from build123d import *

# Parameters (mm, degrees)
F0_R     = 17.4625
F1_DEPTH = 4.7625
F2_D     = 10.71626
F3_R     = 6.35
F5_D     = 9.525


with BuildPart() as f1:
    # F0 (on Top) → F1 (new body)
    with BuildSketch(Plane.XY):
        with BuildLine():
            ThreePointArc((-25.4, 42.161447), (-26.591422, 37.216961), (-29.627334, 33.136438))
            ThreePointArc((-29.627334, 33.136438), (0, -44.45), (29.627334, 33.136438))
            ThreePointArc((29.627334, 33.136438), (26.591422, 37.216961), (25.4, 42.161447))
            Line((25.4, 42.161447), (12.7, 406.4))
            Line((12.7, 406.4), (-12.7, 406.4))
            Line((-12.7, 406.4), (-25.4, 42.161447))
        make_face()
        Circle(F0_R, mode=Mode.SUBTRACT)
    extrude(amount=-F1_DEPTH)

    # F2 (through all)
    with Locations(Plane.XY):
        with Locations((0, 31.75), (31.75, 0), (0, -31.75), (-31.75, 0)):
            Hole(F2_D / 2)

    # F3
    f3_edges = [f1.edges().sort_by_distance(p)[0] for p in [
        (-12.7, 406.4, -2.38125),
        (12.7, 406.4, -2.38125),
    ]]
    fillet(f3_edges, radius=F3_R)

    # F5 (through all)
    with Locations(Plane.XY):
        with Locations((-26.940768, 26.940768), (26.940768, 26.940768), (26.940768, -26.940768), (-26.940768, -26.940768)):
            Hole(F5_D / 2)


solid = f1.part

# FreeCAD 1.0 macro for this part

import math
import FreeCAD as App
import Part
import Sketcher
Q = App.Units.Quantity


def edges_at(feature, points):
    """Names of the edges that pass closest to the given points."""
    edges = feature.Shape.Edges
    near = lambda p: min(range(len(edges)), key=lambda i: edges[i].distToShape(Part.Vertex(*p))[0])
    return sorted({f"Edge{near(p) + 1}" for p in points})

doc = App.newDocument("Part")
params = doc.addObject("Spreadsheet::Sheet", "Params")
for row, (alias, value) in enumerate([
    ("sketch1_radius", "0.5000001 in"),
    ("sketch1_width", "1 in"),
    ("sketch1_radius2", "1.75 in"),
    ("sketch1_diameter", "1.375 in"),
    ("pad1_length", "0.1875 in"),
    ("hole_diameter", "0.4219 in"),
    ("fillet_radius", "0.25 in"),
    ("sketch3_diameter", "0.375 in"),
    ("hole2_diameter", "0.375 in"),
], start=1):
    params.set(f"A{row}", alias)
    params.set(f"B{row}", "=" + value)
    params.setAlias(f"B{row}", alias)

body = doc.addObject("PartDesign::Body", "Body")

# Sketch on XY plane
sketch1 = body.newObject("Sketcher::SketchObject", "Sketch")
sketch1.AttachmentSupport = (doc.getObject("XY_Plane"), [""])
sketch1.MapMode = "FlatFace"
sketch1.addGeometry([
    Part.ArcOfCircle(Part.Circle(App.Vector(-38, 43, 0), App.Vector(0, 0, 1), 13), math.radians(-48), math.radians(-2)),  # 0
    Part.ArcOfCircle(Part.Circle(App.Vector(0, 0, 0), App.Vector(0, 0, 1), 44), math.radians(132), math.radians(408)),  # 1
    Part.ArcOfCircle(Part.Circle(App.Vector(38, 43, 0), App.Vector(0, 0, 1), 13), math.radians(-178), math.radians(-132)),  # 2
    Part.LineSegment(App.Vector(25, 42, 0), App.Vector(13, 406, 0)),  # 3
    Part.LineSegment(App.Vector(13, 406, 0), App.Vector(-13, 406, 0)),  # 4
    Part.LineSegment(App.Vector(-13, 406, 0), App.Vector(-25, 42, 0)),  # 5
    Part.Circle(App.Vector(0, 0, 0), App.Vector(0, 0, 1), 17),  # 6
], False)
sketch1.addConstraint([
    Sketcher.Constraint("Tangent", 0, 1, 1, 1),
    Sketcher.Constraint("Tangent", 1, 2, 2, 2),
    Sketcher.Constraint("Tangent", 2, 1, 3, 1),
    Sketcher.Constraint("Coincident", 3, 2, 4, 1),
    Sketcher.Constraint("Coincident", 4, 2, 5, 1),
    Sketcher.Constraint("Tangent", 5, 2, 0, 2),
    Sketcher.Constraint("Horizontal", 4),
    Sketcher.Constraint("Coincident", 1, 3, -1, 1),
    Sketcher.Constraint("Coincident", 6, 3, -1, 1),
    Sketcher.Constraint("Equal", 0, 2),
    Sketcher.Constraint("Symmetric", 2, 1, 5, 2, -2),
    Sketcher.Constraint("Radius", 0, Q("0.5000001 in")),
    Sketcher.Constraint("DistanceX", 4, 2, 4, 1, Q("1 in")),
    Sketcher.Constraint("Radius", 1, Q("1.75 in")),
    Sketcher.Constraint("Diameter", 6, Q("1.375 in")),
    Sketcher.Constraint("DistanceX", -1, 1, 2, 1, Q("1 in")),
    Sketcher.Constraint("DistanceY", -1, 1, 3, 2, Q("16 in")),
])
sketch1.setExpression("Constraints[11]", "Params.sketch1_radius")
sketch1.setExpression("Constraints[12]", "Params.sketch1_width")
sketch1.setExpression("Constraints[13]", "Params.sketch1_radius2")
sketch1.setExpression("Constraints[14]", "Params.sketch1_diameter")
pad1 = body.newObject("PartDesign::Pad", "Pad")
pad1.Profile = sketch1
pad1.setExpression("Length", "Params.pad1_length")
pad1.Reversed = True

# Sketch on XY plane
sketch2 = body.newObject("Sketcher::SketchObject", "Sketch001")
sketch2.AttachmentSupport = (doc.getObject("XY_Plane"), [""])
sketch2.MapMode = "FlatFace"
sketch2.addGeometry([
    Part.Circle(App.Vector(0, 32, 0), App.Vector(0, 0, 1), 5),
    Part.Circle(App.Vector(32, 0, 0), App.Vector(0, 0, 1), 5),
    Part.Circle(App.Vector(0, -32, 0), App.Vector(0, 0, 1), 5),
    Part.Circle(App.Vector(-32, 0, 0), App.Vector(0, 0, 1), 5),
], False)
sketch2.addConstraint([
    Sketcher.Constraint("Equal", 0, 1),
    Sketcher.Constraint("Equal", 1, 2),
    Sketcher.Constraint("Equal", 2, 3),
    Sketcher.Constraint("Symmetric", 0, 3, 2, 3, -1, 1),
    Sketcher.Constraint("Symmetric", 1, 3, 3, 3, -1, 1),
    Sketcher.Constraint("PointOnObject", 0, 3, -2),
    Sketcher.Constraint("PointOnObject", 1, 3, -1),
    Sketcher.Constraint("Diameter", 0, Q("0.4219 in")),
    Sketcher.Constraint("DistanceY", 2, 3, 0, 3, Q("2.5 in")),
    Sketcher.Constraint("DistanceX", 3, 3, 1, 3, Q("2.5 in")),
])
doc.recompute()
hole = body.newObject("PartDesign::Hole", "Hole")
hole.Profile = sketch2
hole.ThreadType = "None"
hole.setExpression("Diameter", "Params.hole_diameter")
hole.DepthType = "ThroughAll"
doc.recompute()

fillet = body.newObject("PartDesign::Fillet", "Fillet")
fillet.Base = (hole, edges_at(hole, [(-12.7, 406.4, -2.381), (12.7, 406.4, -2.381)]))
fillet.setExpression("Radius", "Params.fillet_radius")

# Sketch on XY plane
sketch3 = body.newObject("Sketcher::SketchObject", "Sketch002")
sketch3.AttachmentSupport = (doc.getObject("XY_Plane"), [""])
sketch3.MapMode = "FlatFace"
sketch3.addGeometry([
    Part.Circle(App.Vector(-26.9, 26.9, 0), App.Vector(0, 0, 1), 4.8),
    Part.Circle(App.Vector(26.9, 26.9, 0), App.Vector(0, 0, 1), 4.8),
    Part.Circle(App.Vector(26.9, -26.9, 0), App.Vector(0, 0, 1), 4.8),
    Part.Circle(App.Vector(-26.9, -26.9, 0), App.Vector(0, 0, 1), 4.8),
], False)
sketch3.addConstraint([
    Sketcher.Constraint("Equal", 0, 1),
    Sketcher.Constraint("Equal", 1, 2),
    Sketcher.Constraint("Equal", 2, 3),
    Sketcher.Constraint("Symmetric", 0, 3, 2, 3, -1, 1),
    Sketcher.Constraint("Symmetric", 1, 3, 3, 3, -1, 1),
    Sketcher.Constraint("Symmetric", 0, 3, 1, 3, -2),
    Sketcher.Constraint("Diameter", 0, Q("0.375 in")),
    Sketcher.Constraint("DistanceX", 0, 3, -1, 1, 26.940768),
    Sketcher.Constraint("DistanceY", -1, 1, 0, 3, 26.940768),
])
sketch3.setExpression("Constraints[6]", "Params.sketch3_diameter")
doc.recompute()
hole2 = body.newObject("PartDesign::Hole", "Hole001")
hole2.Profile = sketch3
hole2.ThreadType = "None"
hole2.setExpression("Diameter", "Params.hole2_diameter")
hole2.DepthType = "ThroughAll"

doc.recompute()
